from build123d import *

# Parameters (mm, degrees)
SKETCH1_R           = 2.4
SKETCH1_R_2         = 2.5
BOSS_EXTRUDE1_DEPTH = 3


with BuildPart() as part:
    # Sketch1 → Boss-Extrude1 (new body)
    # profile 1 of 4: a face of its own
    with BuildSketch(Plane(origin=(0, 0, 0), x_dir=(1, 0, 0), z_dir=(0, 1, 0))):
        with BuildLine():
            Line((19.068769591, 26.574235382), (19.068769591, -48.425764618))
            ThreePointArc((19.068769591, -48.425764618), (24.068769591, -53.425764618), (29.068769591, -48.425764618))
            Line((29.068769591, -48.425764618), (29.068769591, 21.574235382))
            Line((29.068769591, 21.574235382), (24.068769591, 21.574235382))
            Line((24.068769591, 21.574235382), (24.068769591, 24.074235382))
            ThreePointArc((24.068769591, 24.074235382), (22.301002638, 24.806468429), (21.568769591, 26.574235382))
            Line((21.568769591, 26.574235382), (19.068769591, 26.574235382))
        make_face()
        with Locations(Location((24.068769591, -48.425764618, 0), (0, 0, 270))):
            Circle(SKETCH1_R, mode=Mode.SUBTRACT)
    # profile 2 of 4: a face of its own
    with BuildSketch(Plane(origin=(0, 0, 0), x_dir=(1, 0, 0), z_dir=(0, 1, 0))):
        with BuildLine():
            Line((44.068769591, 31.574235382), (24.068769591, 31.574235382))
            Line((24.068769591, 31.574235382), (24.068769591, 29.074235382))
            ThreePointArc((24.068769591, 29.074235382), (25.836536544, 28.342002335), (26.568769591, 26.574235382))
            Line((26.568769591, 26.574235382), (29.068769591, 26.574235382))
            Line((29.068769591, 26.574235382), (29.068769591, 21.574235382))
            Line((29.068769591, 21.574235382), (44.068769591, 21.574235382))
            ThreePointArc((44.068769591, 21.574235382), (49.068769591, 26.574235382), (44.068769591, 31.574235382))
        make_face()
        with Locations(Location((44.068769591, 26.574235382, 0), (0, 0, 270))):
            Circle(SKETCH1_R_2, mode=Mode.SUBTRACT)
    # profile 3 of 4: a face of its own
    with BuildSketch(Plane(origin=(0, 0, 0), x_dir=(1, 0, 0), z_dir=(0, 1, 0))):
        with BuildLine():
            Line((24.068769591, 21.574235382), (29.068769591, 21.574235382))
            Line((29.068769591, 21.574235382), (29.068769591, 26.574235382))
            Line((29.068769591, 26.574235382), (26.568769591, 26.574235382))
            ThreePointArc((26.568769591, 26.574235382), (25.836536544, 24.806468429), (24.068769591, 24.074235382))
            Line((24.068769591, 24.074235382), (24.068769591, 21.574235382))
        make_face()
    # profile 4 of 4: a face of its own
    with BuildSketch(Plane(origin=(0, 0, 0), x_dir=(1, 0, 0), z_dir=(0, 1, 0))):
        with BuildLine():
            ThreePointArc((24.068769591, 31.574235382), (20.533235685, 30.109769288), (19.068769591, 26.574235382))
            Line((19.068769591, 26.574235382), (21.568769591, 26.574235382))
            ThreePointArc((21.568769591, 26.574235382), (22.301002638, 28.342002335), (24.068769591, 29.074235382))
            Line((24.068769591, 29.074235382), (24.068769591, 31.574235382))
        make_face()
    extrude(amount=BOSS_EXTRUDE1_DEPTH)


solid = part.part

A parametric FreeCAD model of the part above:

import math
import FreeCAD as App
import Part
import Sketcher
from FreeCAD import Vector
Q = App.Units.Quantity

doc = App.newDocument("Part")
body = doc.addObject("PartDesign::Body", "Body")

# Sketch on XZ plane
sketch1 = doc.addObject("Sketcher::SketchObject", "Sketch")
body.addObject(sketch1)
sketch1.AttachmentSupport = (doc.XZ_Plane, [""])
sketch1.MapMode = "FlatFace"
sketch1.addGeometry(Part.LineSegment(Vector(19.1, -26.6, 0), Vector(19.1, 48.4, 0)), False)
sketch1.addGeometry(Part.ArcOfCircle(Part.Circle(Vector(24.1, 48.4, 0), Vector(0, 0, 1), 5), math.radians(0), math.radians(180)), False)
sketch1.addGeometry(Part.LineSegment(Vector(29.1, 48.4, 0), Vector(29.1, -21.6, 0)), False)
sketch1.addGeometry(Part.LineSegment(Vector(29.1, -21.6, 0), Vector(44.1, -21.6, 0)), False)
sketch1.addGeometry(Part.ArcOfCircle(Part.Circle(Vector(44.1, -26.6, 0), Vector(0, 0, 1), 5), math.radians(-90), math.radians(90)), False)
sketch1.addGeometry(Part.LineSegment(Vector(44.1, -31.6, 0), Vector(24.1, -31.6, 0)), False)
sketch1.addGeometry(Part.ArcOfCircle(Part.Circle(Vector(24.1, -26.6, 0), Vector(0, 0, 1), 5), math.radians(180), math.radians(270)), False)
sketch1.addGeometry(Part.ArcOfCircle(Part.Circle(Vector(24.1, -26.6, 0), Vector(0, 0, 1), 2.5), math.radians(90), math.radians(180)), False)
sketch1.addGeometry(Part.ArcOfCircle(Part.Circle(Vector(24.1, -26.6, 0), Vector(0, 0, 1), 2.5), math.radians(180), math.radians(270)), False)
sketch1.addGeometry(Part.ArcOfCircle(Part.Circle(Vector(24.1, -26.6, 0), Vector(0, 0, 1), 2.5), math.radians(-90), math.radians(0)), False)
sketch1.addGeometry(Part.ArcOfCircle(Part.Circle(Vector(24.1, -26.6, 0), Vector(0, 0, 1), 2.5), math.radians(0), math.radians(90)), False)
sketch1.addGeometry(Part.Circle(Vector(24.1, 48.4, 0), Vector(0, 0, 1), 2.4), False)
sketch1.addGeometry(Part.Circle(Vector(44.1, -26.6, 0), Vector(0, 0, 1), 2.5), False)
sketch1.addConstraint(Sketcher.Constraint("Tangent", 0, 2, 1, 2))
sketch1.addConstraint(Sketcher.Constraint("Tangent", 1, 1, 2, 1))
sketch1.addConstraint(Sketcher.Constraint("Coincident", 2, 2, 3, 1))
sketch1.addConstraint(Sketcher.Constraint("Tangent", 3, 2, 4, 2))
sketch1.addConstraint(Sketcher.Constraint("Tangent", 4, 1, 5, 1))
sketch1.addConstraint(Sketcher.Constraint("Tangent", 5, 2, 6, 2))
sketch1.addConstraint(Sketcher.Constraint("Tangent", 6, 1, 0, 1))
sketch1.addConstraint(Sketcher.Constraint("Tangent", 7, 2, 8, 1))
sketch1.addConstraint(Sketcher.Constraint("Tangent", 8, 2, 9, 1))
sketch1.addConstraint(Sketcher.Constraint("Tangent", 9, 2, 10, 1))
sketch1.addConstraint(Sketcher.Constraint("Tangent", 10, 2, 7, 1))
sketch1.addConstraint(Sketcher.Constraint("Vertical", 0))
sketch1.addConstraint(Sketcher.Constraint("Vertical", 2))
sketch1.addConstraint(Sketcher.Constraint("Horizontal", 3))
sketch1.addConstraint(Sketcher.Constraint("Horizontal", 5))
sketch1.addConstraint(Sketcher.Constraint("Coincident", 7, 3, 6, 3))
sketch1.addConstraint(Sketcher.Constraint("Coincident", 11, 3, 1, 3))
sketch1.addConstraint(Sketcher.Constraint("Coincident", 12, 3, 4, 3))
sketch1.addConstraint(Sketcher.Constraint("Equal", 1, 4))
sketch1.addConstraint(Sketcher.Constraint("Equal", 4, 6))
sketch1.addConstraint(Sketcher.Constraint("Equal", 7, 8))
sketch1.addConstraint(Sketcher.Constraint("Equal", 10, 12))
sketch1.addConstraint(Sketcher.Constraint("Horizontal", 6, 1, 7, 2))
sketch1.addConstraint(Sketcher.Constraint("Horizontal", 7, 2, 9, 2))
sketch1.addConstraint(Sketcher.Constraint("Vertical", 5, 2, 8, 2))
sketch1.addConstraint(Sketcher.Constraint("Vertical", 8, 2, 10, 2))
sketch1.addConstraint(Sketcher.Constraint("Diameter", 12, Q("5 mm")))
sketch1.addConstraint(Sketcher.Constraint("Radius", 1, Q("5 mm")))
sketch1.addConstraint(Sketcher.Constraint("Diameter", 11, Q("4.8 mm")))
sketch1.addConstraint(Sketcher.Constraint("DistanceX", 3, 1, 3, 2, Q("15 mm")))
sketch1.addConstraint(Sketcher.Constraint("DistanceY", 0, 1, 0, 2, Q("75 mm")))
sketch1.addConstraint(Sketcher.Constraint("DistanceX", -1, 1, 1, 3, Q("24.06877 mm")))
sketch1.addConstraint(Sketcher.Constraint("DistanceY", -1, 1, 1, 3, Q("48.425765 mm")))
pad1 = doc.addObject("PartDesign::Pad", "Pad")
body.addObject(pad1)
pad1.Profile = sketch1
pad1.Length = 3
pad1.Reversed = True

doc.recompute()
